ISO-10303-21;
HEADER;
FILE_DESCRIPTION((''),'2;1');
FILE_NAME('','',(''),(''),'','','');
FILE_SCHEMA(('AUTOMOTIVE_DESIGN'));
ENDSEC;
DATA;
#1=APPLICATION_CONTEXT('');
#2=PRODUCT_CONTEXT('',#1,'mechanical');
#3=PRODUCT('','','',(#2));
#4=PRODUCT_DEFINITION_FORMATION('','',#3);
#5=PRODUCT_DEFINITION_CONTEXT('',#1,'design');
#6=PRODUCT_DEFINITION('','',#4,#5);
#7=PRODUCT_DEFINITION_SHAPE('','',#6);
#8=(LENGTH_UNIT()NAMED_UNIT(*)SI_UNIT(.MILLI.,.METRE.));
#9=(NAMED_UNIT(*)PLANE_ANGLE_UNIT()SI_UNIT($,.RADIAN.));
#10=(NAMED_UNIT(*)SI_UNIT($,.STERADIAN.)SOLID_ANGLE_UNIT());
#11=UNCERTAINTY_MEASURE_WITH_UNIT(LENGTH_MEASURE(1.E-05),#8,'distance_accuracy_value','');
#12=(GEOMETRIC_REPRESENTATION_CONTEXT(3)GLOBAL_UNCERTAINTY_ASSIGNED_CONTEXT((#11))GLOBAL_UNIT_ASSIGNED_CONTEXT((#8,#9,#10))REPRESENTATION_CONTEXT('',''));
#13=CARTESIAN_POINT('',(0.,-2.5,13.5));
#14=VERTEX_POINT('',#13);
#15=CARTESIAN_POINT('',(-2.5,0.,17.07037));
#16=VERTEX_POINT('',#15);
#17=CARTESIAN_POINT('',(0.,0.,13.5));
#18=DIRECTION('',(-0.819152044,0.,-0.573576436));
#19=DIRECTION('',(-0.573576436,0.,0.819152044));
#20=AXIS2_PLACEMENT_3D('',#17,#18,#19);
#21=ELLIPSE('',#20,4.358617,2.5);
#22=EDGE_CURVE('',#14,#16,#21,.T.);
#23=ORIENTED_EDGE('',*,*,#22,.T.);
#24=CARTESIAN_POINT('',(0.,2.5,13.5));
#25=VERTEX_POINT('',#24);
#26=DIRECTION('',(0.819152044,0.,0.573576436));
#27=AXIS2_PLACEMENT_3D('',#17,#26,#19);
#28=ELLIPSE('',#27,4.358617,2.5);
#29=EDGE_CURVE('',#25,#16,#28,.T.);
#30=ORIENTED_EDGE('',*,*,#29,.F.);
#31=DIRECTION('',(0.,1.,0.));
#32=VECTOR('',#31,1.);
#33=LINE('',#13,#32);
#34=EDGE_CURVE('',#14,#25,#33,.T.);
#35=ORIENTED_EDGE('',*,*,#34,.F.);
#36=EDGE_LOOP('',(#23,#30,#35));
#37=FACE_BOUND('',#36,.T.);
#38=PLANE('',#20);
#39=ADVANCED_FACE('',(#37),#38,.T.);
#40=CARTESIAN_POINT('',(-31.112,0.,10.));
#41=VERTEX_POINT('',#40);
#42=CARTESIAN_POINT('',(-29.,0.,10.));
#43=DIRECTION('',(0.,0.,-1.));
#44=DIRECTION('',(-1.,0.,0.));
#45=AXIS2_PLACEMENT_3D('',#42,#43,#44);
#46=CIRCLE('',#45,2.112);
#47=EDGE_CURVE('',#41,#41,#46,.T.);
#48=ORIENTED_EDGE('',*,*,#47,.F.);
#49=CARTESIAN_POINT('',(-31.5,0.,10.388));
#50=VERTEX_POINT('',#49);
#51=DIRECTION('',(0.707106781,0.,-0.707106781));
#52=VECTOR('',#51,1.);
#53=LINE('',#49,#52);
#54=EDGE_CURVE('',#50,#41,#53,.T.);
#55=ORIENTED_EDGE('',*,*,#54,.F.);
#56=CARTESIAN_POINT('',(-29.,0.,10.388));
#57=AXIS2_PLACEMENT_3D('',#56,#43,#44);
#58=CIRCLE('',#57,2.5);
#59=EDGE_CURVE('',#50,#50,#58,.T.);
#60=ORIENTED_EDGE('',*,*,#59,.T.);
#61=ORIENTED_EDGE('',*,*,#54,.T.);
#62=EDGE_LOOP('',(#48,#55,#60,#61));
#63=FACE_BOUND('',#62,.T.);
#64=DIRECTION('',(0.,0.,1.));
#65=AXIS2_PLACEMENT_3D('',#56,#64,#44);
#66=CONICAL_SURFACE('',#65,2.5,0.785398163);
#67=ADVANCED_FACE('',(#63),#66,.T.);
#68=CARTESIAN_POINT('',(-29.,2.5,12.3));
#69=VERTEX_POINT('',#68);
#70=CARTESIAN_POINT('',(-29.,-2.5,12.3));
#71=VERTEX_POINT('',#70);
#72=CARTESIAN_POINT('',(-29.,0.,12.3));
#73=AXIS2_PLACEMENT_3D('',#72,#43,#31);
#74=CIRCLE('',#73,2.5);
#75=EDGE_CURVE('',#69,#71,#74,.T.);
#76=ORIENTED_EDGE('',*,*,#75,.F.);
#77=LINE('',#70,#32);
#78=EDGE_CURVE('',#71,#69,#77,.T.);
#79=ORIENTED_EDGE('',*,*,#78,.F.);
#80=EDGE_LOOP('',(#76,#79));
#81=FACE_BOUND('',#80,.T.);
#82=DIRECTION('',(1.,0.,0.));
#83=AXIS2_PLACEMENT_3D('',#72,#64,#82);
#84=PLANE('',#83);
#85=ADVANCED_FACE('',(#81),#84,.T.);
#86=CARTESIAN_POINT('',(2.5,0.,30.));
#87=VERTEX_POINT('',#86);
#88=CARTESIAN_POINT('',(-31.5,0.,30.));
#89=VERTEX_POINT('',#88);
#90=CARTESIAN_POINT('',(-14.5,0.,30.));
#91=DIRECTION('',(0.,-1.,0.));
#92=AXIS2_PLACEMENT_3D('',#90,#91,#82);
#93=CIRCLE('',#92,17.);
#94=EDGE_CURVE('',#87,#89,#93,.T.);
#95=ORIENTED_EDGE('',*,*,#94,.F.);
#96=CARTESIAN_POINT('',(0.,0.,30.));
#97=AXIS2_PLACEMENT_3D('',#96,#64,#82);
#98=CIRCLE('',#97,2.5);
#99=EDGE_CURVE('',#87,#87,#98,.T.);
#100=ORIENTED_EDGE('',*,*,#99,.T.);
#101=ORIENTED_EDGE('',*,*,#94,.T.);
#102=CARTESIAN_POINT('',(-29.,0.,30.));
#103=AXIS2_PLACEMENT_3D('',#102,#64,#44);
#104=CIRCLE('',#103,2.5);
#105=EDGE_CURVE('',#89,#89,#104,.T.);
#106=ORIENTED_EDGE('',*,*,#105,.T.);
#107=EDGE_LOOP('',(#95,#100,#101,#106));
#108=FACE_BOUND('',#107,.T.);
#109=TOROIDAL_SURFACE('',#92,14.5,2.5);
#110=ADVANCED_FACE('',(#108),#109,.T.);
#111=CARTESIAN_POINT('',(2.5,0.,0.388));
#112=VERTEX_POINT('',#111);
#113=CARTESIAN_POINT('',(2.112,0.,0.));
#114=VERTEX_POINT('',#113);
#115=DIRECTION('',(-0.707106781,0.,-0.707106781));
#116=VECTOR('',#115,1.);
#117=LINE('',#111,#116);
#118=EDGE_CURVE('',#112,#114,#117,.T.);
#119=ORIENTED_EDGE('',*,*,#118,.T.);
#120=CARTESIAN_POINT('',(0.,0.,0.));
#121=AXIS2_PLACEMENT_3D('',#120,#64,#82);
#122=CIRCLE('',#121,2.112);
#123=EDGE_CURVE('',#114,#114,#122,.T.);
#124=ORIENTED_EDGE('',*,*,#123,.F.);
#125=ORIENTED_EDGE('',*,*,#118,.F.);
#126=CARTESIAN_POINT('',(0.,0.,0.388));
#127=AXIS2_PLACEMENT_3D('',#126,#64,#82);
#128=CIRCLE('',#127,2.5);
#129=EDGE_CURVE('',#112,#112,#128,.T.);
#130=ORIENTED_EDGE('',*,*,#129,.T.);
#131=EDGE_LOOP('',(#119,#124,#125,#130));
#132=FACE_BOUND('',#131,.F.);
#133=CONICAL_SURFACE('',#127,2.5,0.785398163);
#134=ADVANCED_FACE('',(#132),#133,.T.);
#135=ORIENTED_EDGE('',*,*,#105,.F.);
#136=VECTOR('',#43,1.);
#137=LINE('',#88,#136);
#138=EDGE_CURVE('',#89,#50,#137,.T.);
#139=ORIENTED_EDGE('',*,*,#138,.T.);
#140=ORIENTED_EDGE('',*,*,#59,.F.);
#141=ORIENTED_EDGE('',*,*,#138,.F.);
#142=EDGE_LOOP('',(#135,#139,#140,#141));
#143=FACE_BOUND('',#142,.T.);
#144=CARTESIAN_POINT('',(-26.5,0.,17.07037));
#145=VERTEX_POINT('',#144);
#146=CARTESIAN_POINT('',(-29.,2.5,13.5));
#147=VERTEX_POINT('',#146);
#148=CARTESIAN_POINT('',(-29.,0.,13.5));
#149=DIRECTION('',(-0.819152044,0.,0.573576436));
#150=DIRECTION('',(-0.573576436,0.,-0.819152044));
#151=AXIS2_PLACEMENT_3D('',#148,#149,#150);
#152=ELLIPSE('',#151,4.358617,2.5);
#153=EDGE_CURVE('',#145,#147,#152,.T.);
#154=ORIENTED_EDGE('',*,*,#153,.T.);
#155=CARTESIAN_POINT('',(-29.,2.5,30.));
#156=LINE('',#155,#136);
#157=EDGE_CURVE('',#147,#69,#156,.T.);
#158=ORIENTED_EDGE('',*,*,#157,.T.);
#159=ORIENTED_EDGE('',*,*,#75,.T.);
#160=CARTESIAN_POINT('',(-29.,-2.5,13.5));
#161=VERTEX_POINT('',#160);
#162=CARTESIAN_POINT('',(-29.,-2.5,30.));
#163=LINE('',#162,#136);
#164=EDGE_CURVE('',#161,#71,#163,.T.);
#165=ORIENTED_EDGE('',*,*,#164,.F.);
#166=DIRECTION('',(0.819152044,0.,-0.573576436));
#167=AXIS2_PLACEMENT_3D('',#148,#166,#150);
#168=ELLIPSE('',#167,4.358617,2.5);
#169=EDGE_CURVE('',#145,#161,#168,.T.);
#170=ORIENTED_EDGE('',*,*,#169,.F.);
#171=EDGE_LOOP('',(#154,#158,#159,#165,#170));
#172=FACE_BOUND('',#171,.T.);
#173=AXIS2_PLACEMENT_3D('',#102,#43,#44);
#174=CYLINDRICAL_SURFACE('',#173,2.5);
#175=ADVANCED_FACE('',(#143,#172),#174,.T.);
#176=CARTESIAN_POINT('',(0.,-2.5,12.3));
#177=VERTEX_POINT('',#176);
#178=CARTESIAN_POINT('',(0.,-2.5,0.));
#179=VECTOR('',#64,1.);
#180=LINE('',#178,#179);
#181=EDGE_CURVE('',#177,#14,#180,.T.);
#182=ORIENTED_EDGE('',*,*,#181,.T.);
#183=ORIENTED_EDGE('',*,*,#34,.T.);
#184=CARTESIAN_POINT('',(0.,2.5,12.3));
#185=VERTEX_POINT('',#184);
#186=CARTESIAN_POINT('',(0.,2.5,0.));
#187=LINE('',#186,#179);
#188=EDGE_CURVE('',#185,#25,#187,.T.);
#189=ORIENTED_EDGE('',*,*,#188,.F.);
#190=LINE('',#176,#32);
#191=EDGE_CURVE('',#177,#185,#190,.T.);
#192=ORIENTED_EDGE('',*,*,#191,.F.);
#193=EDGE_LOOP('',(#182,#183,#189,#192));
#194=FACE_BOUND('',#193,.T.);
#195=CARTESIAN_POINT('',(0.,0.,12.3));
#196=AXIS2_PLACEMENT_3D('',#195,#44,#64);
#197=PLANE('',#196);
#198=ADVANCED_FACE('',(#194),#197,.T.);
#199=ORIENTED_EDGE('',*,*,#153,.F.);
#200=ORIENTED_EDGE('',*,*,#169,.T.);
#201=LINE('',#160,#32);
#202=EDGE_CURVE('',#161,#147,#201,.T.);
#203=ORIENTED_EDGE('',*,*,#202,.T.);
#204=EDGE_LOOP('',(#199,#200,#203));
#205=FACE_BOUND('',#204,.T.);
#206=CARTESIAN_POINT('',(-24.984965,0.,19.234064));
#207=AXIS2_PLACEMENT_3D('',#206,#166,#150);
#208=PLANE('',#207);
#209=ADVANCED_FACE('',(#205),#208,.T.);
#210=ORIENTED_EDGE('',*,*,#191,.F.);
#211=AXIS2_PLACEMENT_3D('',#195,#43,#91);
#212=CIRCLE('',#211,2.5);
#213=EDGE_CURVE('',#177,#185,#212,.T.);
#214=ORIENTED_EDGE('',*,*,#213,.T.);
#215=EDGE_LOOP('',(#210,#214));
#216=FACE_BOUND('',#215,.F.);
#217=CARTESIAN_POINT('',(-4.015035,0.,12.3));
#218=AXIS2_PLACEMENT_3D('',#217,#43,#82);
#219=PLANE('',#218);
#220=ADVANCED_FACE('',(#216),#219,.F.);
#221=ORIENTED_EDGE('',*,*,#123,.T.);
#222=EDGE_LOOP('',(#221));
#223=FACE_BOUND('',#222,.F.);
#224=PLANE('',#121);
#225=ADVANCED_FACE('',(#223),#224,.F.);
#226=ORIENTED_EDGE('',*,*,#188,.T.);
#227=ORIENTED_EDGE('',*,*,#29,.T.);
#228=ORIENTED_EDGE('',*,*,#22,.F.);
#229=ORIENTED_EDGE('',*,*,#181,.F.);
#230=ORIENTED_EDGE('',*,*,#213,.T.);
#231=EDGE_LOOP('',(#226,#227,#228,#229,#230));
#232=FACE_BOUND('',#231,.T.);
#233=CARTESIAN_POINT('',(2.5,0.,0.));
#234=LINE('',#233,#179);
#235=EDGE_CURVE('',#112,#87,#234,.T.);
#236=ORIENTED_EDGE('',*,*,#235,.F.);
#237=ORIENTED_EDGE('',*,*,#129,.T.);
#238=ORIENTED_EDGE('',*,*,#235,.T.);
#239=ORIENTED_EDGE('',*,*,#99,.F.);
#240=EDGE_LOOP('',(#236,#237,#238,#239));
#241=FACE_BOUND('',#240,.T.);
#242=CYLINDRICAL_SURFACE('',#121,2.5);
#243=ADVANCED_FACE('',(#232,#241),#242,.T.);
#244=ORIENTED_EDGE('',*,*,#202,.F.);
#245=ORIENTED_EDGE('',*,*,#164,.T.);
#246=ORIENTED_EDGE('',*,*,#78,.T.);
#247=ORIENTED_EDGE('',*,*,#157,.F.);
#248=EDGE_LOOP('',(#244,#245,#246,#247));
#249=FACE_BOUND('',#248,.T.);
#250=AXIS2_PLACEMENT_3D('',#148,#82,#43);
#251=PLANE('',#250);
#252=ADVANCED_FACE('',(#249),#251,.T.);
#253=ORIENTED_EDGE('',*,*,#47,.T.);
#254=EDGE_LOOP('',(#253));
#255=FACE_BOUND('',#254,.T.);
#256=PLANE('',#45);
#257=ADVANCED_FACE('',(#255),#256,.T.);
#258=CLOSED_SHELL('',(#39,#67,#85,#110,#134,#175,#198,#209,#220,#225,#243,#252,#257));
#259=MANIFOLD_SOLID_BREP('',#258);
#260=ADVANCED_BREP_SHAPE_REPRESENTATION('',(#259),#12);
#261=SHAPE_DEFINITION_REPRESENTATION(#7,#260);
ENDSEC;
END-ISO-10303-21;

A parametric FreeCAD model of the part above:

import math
import FreeCAD as App
import Part
import Sketcher
Q = App.Units.Quantity


def edges_at(feature, points):
    """Names of the edges that pass closest to the given points."""
    edges = feature.Shape.Edges
    near = lambda p: min(range(len(edges)), key=lambda i: edges[i].distToShape(Part.Vertex(*p))[0])
    return sorted({f"Edge{near(p) + 1}" for p in points})


def add_polygon(sketch, points):
    """Adds a closed chain of lines whose ends are joined by coincident constraints."""
    first, n = sketch.GeometryCount, len(points)
    for a, b in zip(points, points[1:] + points[:1]):
        sketch.addGeometry(Part.LineSegment(App.Vector(*a, 0), App.Vector(*b, 0)), False)
    for i in range(n):
        sketch.addConstraint(Sketcher.Constraint("Coincident", first + i, 2, first + (i + 1) % n, 1))

doc = App.newDocument("Part")
body = doc.addObject("PartDesign::Body", "Body")

# Sketch on XY plane
sketch1 = doc.addObject("Sketcher::SketchObject", "Sketch")
body.addObject(sketch1)
sketch1.AttachmentSupport = (doc.XY_Plane, [""])
sketch1.MapMode = "FlatFace"
sketch1.addGeometry(Part.Circle(App.Vector(0, 0, 0), App.Vector(0, 0, 1), 2.5), False)
sketch1.addConstraint([
    Sketcher.Constraint("Coincident", 0, 3, -1, 1),
    Sketcher.Constraint("Diameter", 0, Q("5 mm")),
])

# Sketch on XZ plane
sketch2 = doc.addObject("Sketcher::SketchObject", "Sketch001")
body.addObject(sketch2)
sketch2.AttachmentSupport = (doc.XZ_Plane, [""])
sketch2.MapMode = "FlatFace"
sketch2.addGeometry([
    Part.LineSegment(App.Vector(0, 0, 0), App.Vector(0, 30, 0)),
    Part.ArcOfCircle(Part.Circle(App.Vector(-14.5, 30, 0), App.Vector(0, 0, 1), 14.5), math.radians(0), math.radians(180)),
    Part.LineSegment(App.Vector(-29, 30, 0), App.Vector(-29, 10, 0)),
], False)
sketch2.addConstraint([
    Sketcher.Constraint("Tangent", 0, 2, 1, 1),
    Sketcher.Constraint("Tangent", 1, 2, 2, 1),
    Sketcher.Constraint("Vertical", 0),
    Sketcher.Constraint("Vertical", 2),
    Sketcher.Constraint("Coincident", 0, 1, -1, 1),
    Sketcher.Constraint("Radius", 1, Q("14.5 mm")),
    Sketcher.Constraint("DistanceY", 0, 1, 0, 2, Q("30 mm")),
    Sketcher.Constraint("DistanceY", 2, 2, 2, 1, Q("20 mm")),
])
doc.recompute()

additivepipe = doc.addObject("PartDesign::AdditivePipe", "AdditivePipe")
body.addObject(additivepipe)
additivepipe.Profile = sketch1
additivepipe.Spine = (sketch2, ["Edge1", "Edge2", "Edge3"])

# Sketch on XZ plane
sketch3 = doc.addObject("Sketcher::SketchObject", "Sketch002")
body.addObject(sketch3)
sketch3.AttachmentSupport = (doc.XZ_Plane, [""])
sketch3.MapMode = "FlatFace"
add_polygon(sketch3, [(-29, 13.5), (-29, 12.3), (-24.984965, 12.3), (-24.984965, 19.234064)])  # lines 0-3
add_polygon(sketch3, [(-4.015035, 19.234064), (-4.015035, 12.3), (0, 12.3), (0, 13.5)])  # lines 4-7
sketch3.addConstraint([
    Sketcher.Constraint("Vertical", 0),
    Sketcher.Constraint("Horizontal", 1),
    Sketcher.Constraint("Vertical", 2),
    Sketcher.Constraint("Vertical", 4),
    Sketcher.Constraint("Horizontal", 5),
    Sketcher.Constraint("Vertical", 6),
    Sketcher.Constraint("PointOnObject", 5, 2, -2),
    Sketcher.Constraint("Horizontal", 1, 2, 4, 2),
    Sketcher.Constraint("Horizontal", 3, 2, 6, 2),
    Sketcher.Constraint("Horizontal", 2, 2, 7, 2),
    Sketcher.Constraint("Equal", 1, 5),
    Sketcher.Constraint("Angle", 3, Q("-125 deg")),
    Sketcher.Constraint("Distance", 3, Q("7 mm")),
    Sketcher.Constraint("DistanceY", 0, 2, 0, 1, Q("1.2 mm")),
    Sketcher.Constraint("DistanceX", 0, 2, -1, 1, Q("29 mm")),
    Sketcher.Constraint("DistanceY", -1, 1, 0, 2, Q("12.3 mm")),
])
pocket1 = doc.addObject("PartDesign::Pocket", "Pocket")
body.addObject(pocket1)
pocket1.Profile = sketch3
pocket1.Type = "ThroughAll"
pocket1.Midplane = True
doc.recompute()

chamfer = doc.addObject("PartDesign::Chamfer", "Chamfer")
body.addObject(chamfer)
chamfer.Base = (pocket1, edges_at(pocket1, [(-26.5, 0, 10), (-2.5, 0, 0)]))
chamfer.Size = 0.388

doc.recompute()
